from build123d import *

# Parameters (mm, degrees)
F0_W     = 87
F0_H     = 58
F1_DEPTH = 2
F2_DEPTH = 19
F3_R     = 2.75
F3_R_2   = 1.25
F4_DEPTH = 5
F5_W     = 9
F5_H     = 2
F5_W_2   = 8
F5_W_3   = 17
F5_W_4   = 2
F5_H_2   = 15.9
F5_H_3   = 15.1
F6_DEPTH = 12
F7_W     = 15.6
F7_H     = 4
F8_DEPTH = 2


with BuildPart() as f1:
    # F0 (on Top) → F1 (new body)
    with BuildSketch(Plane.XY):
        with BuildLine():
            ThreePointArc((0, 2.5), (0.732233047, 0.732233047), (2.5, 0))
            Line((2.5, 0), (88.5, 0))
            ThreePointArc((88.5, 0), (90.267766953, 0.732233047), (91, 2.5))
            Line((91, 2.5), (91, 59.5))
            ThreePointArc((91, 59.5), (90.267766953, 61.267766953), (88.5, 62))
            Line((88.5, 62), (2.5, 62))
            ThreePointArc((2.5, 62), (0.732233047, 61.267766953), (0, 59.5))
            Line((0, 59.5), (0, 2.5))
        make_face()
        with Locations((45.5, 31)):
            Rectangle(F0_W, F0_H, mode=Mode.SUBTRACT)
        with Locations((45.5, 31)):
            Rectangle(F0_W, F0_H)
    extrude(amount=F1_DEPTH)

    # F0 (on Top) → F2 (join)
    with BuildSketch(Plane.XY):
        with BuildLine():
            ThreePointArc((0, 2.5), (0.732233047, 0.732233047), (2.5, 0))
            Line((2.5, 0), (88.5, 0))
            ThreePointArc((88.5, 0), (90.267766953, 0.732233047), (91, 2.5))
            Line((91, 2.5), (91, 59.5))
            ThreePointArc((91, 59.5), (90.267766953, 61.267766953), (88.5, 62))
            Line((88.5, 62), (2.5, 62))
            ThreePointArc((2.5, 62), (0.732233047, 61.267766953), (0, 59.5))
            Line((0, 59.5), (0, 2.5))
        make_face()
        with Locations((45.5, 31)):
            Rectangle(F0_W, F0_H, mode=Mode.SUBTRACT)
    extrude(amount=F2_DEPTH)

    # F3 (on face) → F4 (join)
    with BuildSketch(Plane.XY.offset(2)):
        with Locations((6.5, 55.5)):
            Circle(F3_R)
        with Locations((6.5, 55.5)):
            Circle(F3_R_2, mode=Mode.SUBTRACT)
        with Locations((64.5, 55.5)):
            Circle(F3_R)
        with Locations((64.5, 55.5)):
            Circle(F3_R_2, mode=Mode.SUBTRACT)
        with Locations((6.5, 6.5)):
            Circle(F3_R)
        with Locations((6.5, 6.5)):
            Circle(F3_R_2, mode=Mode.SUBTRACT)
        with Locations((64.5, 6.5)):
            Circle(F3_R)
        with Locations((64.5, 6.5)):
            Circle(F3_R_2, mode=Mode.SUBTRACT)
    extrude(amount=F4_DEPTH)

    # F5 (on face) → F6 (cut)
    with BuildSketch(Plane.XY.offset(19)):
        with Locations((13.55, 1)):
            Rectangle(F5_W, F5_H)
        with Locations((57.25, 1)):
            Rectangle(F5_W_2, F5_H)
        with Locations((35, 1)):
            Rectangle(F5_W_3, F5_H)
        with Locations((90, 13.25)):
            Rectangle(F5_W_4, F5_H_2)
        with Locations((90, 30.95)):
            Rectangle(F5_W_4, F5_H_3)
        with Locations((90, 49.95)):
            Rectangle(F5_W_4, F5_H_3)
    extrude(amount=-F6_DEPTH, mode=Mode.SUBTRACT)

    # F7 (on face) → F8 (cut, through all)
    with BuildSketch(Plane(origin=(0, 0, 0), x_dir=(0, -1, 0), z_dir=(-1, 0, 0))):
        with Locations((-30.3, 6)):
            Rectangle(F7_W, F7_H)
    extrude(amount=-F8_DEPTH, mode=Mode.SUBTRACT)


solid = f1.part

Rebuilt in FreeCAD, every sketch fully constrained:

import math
import FreeCAD as App
import Part
import Sketcher
from FreeCAD import Vector

doc = App.newDocument("Part")
body = doc.addObject("PartDesign::Body", "Body")

# Sketch on XY plane
sketch1 = doc.addObject("Sketcher::SketchObject", "Sketch")
body.addObject(sketch1)
sketch1.AttachmentSupport = (doc.XY_Plane, [""])
sketch1.MapMode = "FlatFace"
sketch1.addGeometry(Part.ArcOfCircle(Part.Circle(Vector(2.5, 2.5, 0), Vector(0, 0, 1), 2.5), math.radians(180), math.radians(270)), False)
sketch1.addGeometry(Part.LineSegment(Vector(2.5, 0, 0), Vector(88.5, 0, 0)), False)
sketch1.addGeometry(Part.ArcOfCircle(Part.Circle(Vector(88.5, 2.5, 0), Vector(0, 0, 1), 2.5), math.radians(-90), math.radians(0)), False)
sketch1.addGeometry(Part.LineSegment(Vector(91, 2.5, 0), Vector(91, 59.5, 0)), False)
sketch1.addGeometry(Part.ArcOfCircle(Part.Circle(Vector(88.5, 59.5, 0), Vector(0, 0, 1), 2.5), math.radians(0), math.radians(90)), False)
sketch1.addGeometry(Part.LineSegment(Vector(88.5, 62, 0), Vector(2.5, 62, 0)), False)
sketch1.addGeometry(Part.ArcOfCircle(Part.Circle(Vector(2.5, 59.5, 0), Vector(0, 0, 1), 2.5), math.radians(90), math.radians(180)), False)
sketch1.addGeometry(Part.LineSegment(Vector(0, 59.5, 0), Vector(0, 2.5, 0)), False)
sketch1.addConstraint(Sketcher.Constraint("Tangent", 0, 2, 1, 1))
sketch1.addConstraint(Sketcher.Constraint("Tangent", 1, 2, 2, 1))
sketch1.addConstraint(Sketcher.Constraint("Tangent", 2, 2, 3, 1))
sketch1.addConstraint(Sketcher.Constraint("Tangent", 3, 2, 4, 1))
sketch1.addConstraint(Sketcher.Constraint("Tangent", 4, 2, 5, 1))
sketch1.addConstraint(Sketcher.Constraint("Tangent", 5, 2, 6, 1))
sketch1.addConstraint(Sketcher.Constraint("Tangent", 6, 2, 7, 1))
sketch1.addConstraint(Sketcher.Constraint("Tangent", 7, 2, 0, 1))
sketch1.addConstraint(Sketcher.Constraint("Horizontal", 1))
sketch1.addConstraint(Sketcher.Constraint("Vertical", 3))
sketch1.addConstraint(Sketcher.Constraint("Horizontal", 5))
sketch1.addConstraint(Sketcher.Constraint("Vertical", 7))
sketch1.addConstraint(Sketcher.Constraint("Equal", 0, 2))
sketch1.addConstraint(Sketcher.Constraint("Equal", 2, 4))
sketch1.addConstraint(Sketcher.Constraint("Equal", 4, 6))
sketch1.addConstraint(Sketcher.Constraint("PointOnObject", 0, 2, -1))
sketch1.addConstraint(Sketcher.Constraint("PointOnObject", 6, 2, -2))
sketch1.addConstraint(Sketcher.Constraint("Radius", 0, 2.5))
sketch1.addConstraint(Sketcher.Constraint("DistanceX", 1, 1, 1, 2, 86.0))
sketch1.addConstraint(Sketcher.Constraint("DistanceY", 3, 1, 3, 2, 57.0))
pad1 = doc.addObject("PartDesign::Pad", "Pad")
body.addObject(pad1)
pad1.Profile = sketch1
pad1.Length = 2

# Sketch on XY plane
sketch2 = doc.addObject("Sketcher::SketchObject", "Sketch001")
body.addObject(sketch2)
sketch2.AttachmentSupport = (doc.XY_Plane, [""])
sketch2.MapMode = "FlatFace"
sketch2.addGeometry(Part.ArcOfCircle(Part.Circle(Vector(2.5, 2.5, 0), Vector(0, 0, 1), 2.5), math.radians(180), math.radians(270)), False)
sketch2.addGeometry(Part.LineSegment(Vector(2.5, 0, 0), Vector(88.5, 0, 0)), False)
sketch2.addGeometry(Part.ArcOfCircle(Part.Circle(Vector(88.5, 2.5, 0), Vector(0, 0, 1), 2.5), math.radians(-90), math.radians(0)), False)
sketch2.addGeometry(Part.LineSegment(Vector(91, 2.5, 0), Vector(91, 59.5, 0)), False)
sketch2.addGeometry(Part.ArcOfCircle(Part.Circle(Vector(88.5, 59.5, 0), Vector(0, 0, 1), 2.5), math.radians(0), math.radians(90)), False)
sketch2.addGeometry(Part.LineSegment(Vector(88.5, 62, 0), Vector(2.5, 62, 0)), False)
sketch2.addGeometry(Part.ArcOfCircle(Part.Circle(Vector(2.5, 59.5, 0), Vector(0, 0, 1), 2.5), math.radians(90), math.radians(180)), False)
sketch2.addGeometry(Part.LineSegment(Vector(0, 59.5, 0), Vector(0, 2.5, 0)), False)
sketch2.addGeometry(Part.LineSegment(Vector(89, 2, 0), Vector(2, 2, 0)), False)
sketch2.addGeometry(Part.LineSegment(Vector(2, 2, 0), Vector(2, 60, 0)), False)
sketch2.addGeometry(Part.LineSegment(Vector(2, 60, 0), Vector(89, 60, 0)), False)
sketch2.addGeometry(Part.LineSegment(Vector(89, 60, 0), Vector(89, 2, 0)), False)
sketch2.addConstraint(Sketcher.Constraint("Tangent", 0, 2, 1, 1))
sketch2.addConstraint(Sketcher.Constraint("Tangent", 1, 2, 2, 1))
sketch2.addConstraint(Sketcher.Constraint("Tangent", 2, 2, 3, 1))
sketch2.addConstraint(Sketcher.Constraint("Tangent", 3, 2, 4, 1))
sketch2.addConstraint(Sketcher.Constraint("Tangent", 4, 2, 5, 1))
sketch2.addConstraint(Sketcher.Constraint("Tangent", 5, 2, 6, 1))
sketch2.addConstraint(Sketcher.Constraint("Tangent", 6, 2, 7, 1))
sketch2.addConstraint(Sketcher.Constraint("Tangent", 7, 2, 0, 1))
sketch2.addConstraint(Sketcher.Constraint("Coincident", 8, 2, 9, 1))
sketch2.addConstraint(Sketcher.Constraint("Coincident", 9, 2, 10, 1))
sketch2.addConstraint(Sketcher.Constraint("Coincident", 10, 2, 11, 1))
sketch2.addConstraint(Sketcher.Constraint("Coincident", 11, 2, 8, 1))
sketch2.addConstraint(Sketcher.Constraint("Horizontal", 1))
sketch2.addConstraint(Sketcher.Constraint("Vertical", 3))
sketch2.addConstraint(Sketcher.Constraint("Horizontal", 5))
sketch2.addConstraint(Sketcher.Constraint("Vertical", 7))
sketch2.addConstraint(Sketcher.Constraint("Horizontal", 8))
sketch2.addConstraint(Sketcher.Constraint("Vertical", 9))
sketch2.addConstraint(Sketcher.Constraint("Horizontal", 10))
sketch2.addConstraint(Sketcher.Constraint("Vertical", 11))
sketch2.addConstraint(Sketcher.Constraint("Equal", 0, 2))
sketch2.addConstraint(Sketcher.Constraint("Equal", 2, 4))
sketch2.addConstraint(Sketcher.Constraint("Equal", 4, 6))
sketch2.addConstraint(Sketcher.Constraint("PointOnObject", 0, 2, -1))
sketch2.addConstraint(Sketcher.Constraint("PointOnObject", 6, 2, -2))
sketch2.addConstraint(Sketcher.Constraint("Radius", 0, 2.5))
sketch2.addConstraint(Sketcher.Constraint("DistanceX", 1, 1, 1, 2, 86.0))
sketch2.addConstraint(Sketcher.Constraint("DistanceX", 8, 2, 8, 1, 87.0))
sketch2.addConstraint(Sketcher.Constraint("DistanceY", 3, 1, 3, 2, 57.0))
sketch2.addConstraint(Sketcher.Constraint("DistanceY", 9, 1, 9, 2, 58.0))
sketch2.addConstraint(Sketcher.Constraint("DistanceX", -1, 1, 8, 2, 2.0))
sketch2.addConstraint(Sketcher.Constraint("DistanceY", -1, 1, 8, 2, 2.0))
pad2 = doc.addObject("PartDesign::Pad", "Pad001")
body.addObject(pad2)
pad2.Profile = sketch2
pad2.Length = 19

# Sketch on XY plane
sketch3 = doc.addObject("Sketcher::SketchObject", "Sketch002")
body.addObject(sketch3)
sketch3.AttachmentSupport = (doc.XY_Plane, [""])
sketch3.MapMode = "FlatFace"
sketch3.AttachmentOffset = App.Placement(Vector(0, 0, 2), App.Rotation())
sketch3.addGeometry(Part.Circle(Vector(6.5, 55.5, 0), Vector(0, 0, 1), 2.75), False)
sketch3.addGeometry(Part.Circle(Vector(6.5, 55.5, 0), Vector(0, 0, 1), 1.25), False)
sketch3.addGeometry(Part.Circle(Vector(64.5, 55.5, 0), Vector(0, 0, 1), 2.75), False)
sketch3.addGeometry(Part.Circle(Vector(64.5, 55.5, 0), Vector(0, 0, 1), 1.25), False)
sketch3.addGeometry(Part.Circle(Vector(6.5, 6.5, 0), Vector(0, 0, 1), 2.75), False)
sketch3.addGeometry(Part.Circle(Vector(6.5, 6.5, 0), Vector(0, 0, 1), 1.25), False)
sketch3.addGeometry(Part.Circle(Vector(64.5, 6.5, 0), Vector(0, 0, 1), 2.75), False)
sketch3.addGeometry(Part.Circle(Vector(64.5, 6.5, 0), Vector(0, 0, 1), 1.25), False)
sketch3.addConstraint(Sketcher.Constraint("Coincident", 1, 3, 0, 3))
sketch3.addConstraint(Sketcher.Constraint("Coincident", 3, 3, 2, 3))
sketch3.addConstraint(Sketcher.Constraint("Coincident", 5, 3, 4, 3))
sketch3.addConstraint(Sketcher.Constraint("Coincident", 7, 3, 6, 3))
sketch3.addConstraint(Sketcher.Constraint("Equal", 0, 2))
sketch3.addConstraint(Sketcher.Constraint("Equal", 1, 3))
sketch3.addConstraint(Sketcher.Constraint("Equal", 2, 4))
sketch3.addConstraint(Sketcher.Constraint("Equal", 3, 5))
sketch3.addConstraint(Sketcher.Constraint("Equal", 4, 6))
sketch3.addConstraint(Sketcher.Constraint("Equal", 5, 7))
sketch3.addConstraint(Sketcher.Constraint("Horizontal", 1, 3, 2, 3))
sketch3.addConstraint(Sketcher.Constraint("Horizontal", 5, 3, 6, 3))
sketch3.addConstraint(Sketcher.Constraint("Vertical", 1, 3, 4, 3))
sketch3.addConstraint(Sketcher.Constraint("Vertical", 3, 3, 6, 3))
sketch3.addConstraint(Sketcher.Constraint("Diameter", 0, 5.5))
sketch3.addConstraint(Sketcher.Constraint("Diameter", 1, 2.5))
sketch3.addConstraint(Sketcher.Constraint("DistanceX", 0, 3, 2, 3, 58.0))
sketch3.addConstraint(Sketcher.Constraint("DistanceY", 4, 3, 0, 3, 49.0))
sketch3.addConstraint(Sketcher.Constraint("DistanceX", -1, 1, 0, 3, 6.5))
sketch3.addConstraint(Sketcher.Constraint("DistanceY", -1, 1, 0, 3, 55.5))
pad3 = doc.addObject("PartDesign::Pad", "Pad002")
body.addObject(pad3)
pad3.Profile = sketch3
pad3.Length = 5

# Sketch on XY plane
sketch4 = doc.addObject("Sketcher::SketchObject", "Sketch003")
body.addObject(sketch4)
sketch4.AttachmentSupport = (doc.XY_Plane, [""])
sketch4.MapMode = "FlatFace"
sketch4.AttachmentOffset = App.Placement(Vector(0, 0, 19), App.Rotation())
sketch4.addGeometry(Part.LineSegment(Vector(9.05, 2, 0), Vector(9.05, 0, 0)), False)
sketch4.addGeometry(Part.LineSegment(Vector(9.05, 0, 0), Vector(18.05, 0, 0)), False)
sketch4.addGeometry(Part.LineSegment(Vector(18.05, 0, 0), Vector(18.05, 2, 0)), False)
sketch4.addGeometry(Part.LineSegment(Vector(18.05, 2, 0), Vector(9.05, 2, 0)), False)
sketch4.addGeometry(Part.LineSegment(Vector(53.25, 2, 0), Vector(53.25, 0, 0)), False)
sketch4.addGeometry(Part.LineSegment(Vector(53.25, 0, 0), Vector(61.25, 0, 0)), False)
sketch4.addGeometry(Part.LineSegment(Vector(61.25, 0, 0), Vector(61.25, 2, 0)), False)
sketch4.addGeometry(Part.LineSegment(Vector(61.25, 2, 0), Vector(53.25, 2, 0)), False)
sketch4.addGeometry(Part.LineSegment(Vector(26.5, 2, 0), Vector(26.5, 0, 0)), False)
sketch4.addGeometry(Part.LineSegment(Vector(26.5, 0, 0), Vector(43.5, 0, 0)), False)
sketch4.addGeometry(Part.LineSegment(Vector(43.5, 0, 0), Vector(43.5, 2, 0)), False)
sketch4.addGeometry(Part.LineSegment(Vector(43.5, 2, 0), Vector(26.5, 2, 0)), False)
sketch4.addGeometry(Part.LineSegment(Vector(89, 21.2, 0), Vector(89, 5.3, 0)), False)
sketch4.addGeometry(Part.LineSegment(Vector(89, 5.3, 0), Vector(91, 5.3, 0)), False)
sketch4.addGeometry(Part.LineSegment(Vector(91, 5.3, 0), Vector(91, 21.2, 0)), False)
sketch4.addGeometry(Part.LineSegment(Vector(91, 21.2, 0), Vector(89, 21.2, 0)), False)
sketch4.addGeometry(Part.LineSegment(Vector(89, 38.5, 0), Vector(89, 23.4, 0)), False)
sketch4.addGeometry(Part.LineSegment(Vector(89, 23.4, 0), Vector(91, 23.4, 0)), False)
sketch4.addGeometry(Part.LineSegment(Vector(91, 23.4, 0), Vector(91, 38.5, 0)), False)
sketch4.addGeometry(Part.LineSegment(Vector(91, 38.5, 0), Vector(89, 38.5, 0)), False)
sketch4.addGeometry(Part.LineSegment(Vector(89, 57.5, 0), Vector(89, 42.4, 0)), False)
sketch4.addGeometry(Part.LineSegment(Vector(89, 42.4, 0), Vector(91, 42.4, 0)), False)
sketch4.addGeometry(Part.LineSegment(Vector(91, 42.4, 0), Vector(91, 57.5, 0)), False)
sketch4.addGeometry(Part.LineSegment(Vector(91, 57.5, 0), Vector(89, 57.5, 0)), False)
sketch4.addConstraint(Sketcher.Constraint("Coincident", 0, 2, 1, 1))
sketch4.addConstraint(Sketcher.Constraint("Coincident", 1, 2, 2, 1))
sketch4.addConstraint(Sketcher.Constraint("Coincident", 2, 2, 3, 1))
sketch4.addConstraint(Sketcher.Constraint("Coincident", 3, 2, 0, 1))
sketch4.addConstraint(Sketcher.Constraint("Coincident", 4, 2, 5, 1))
sketch4.addConstraint(Sketcher.Constraint("Coincident", 5, 2, 6, 1))
sketch4.addConstraint(Sketcher.Constraint("Coincident", 6, 2, 7, 1))
sketch4.addConstraint(Sketcher.Constraint("Coincident", 7, 2, 4, 1))
sketch4.addConstraint(Sketcher.Constraint("Coincident", 8, 2, 9, 1))
sketch4.addConstraint(Sketcher.Constraint("Coincident", 9, 2, 10, 1))
sketch4.addConstraint(Sketcher.Constraint("Coincident", 10, 2, 11, 1))
sketch4.addConstraint(Sketcher.Constraint("Coincident", 11, 2, 8, 1))
sketch4.addConstraint(Sketcher.Constraint("Coincident", 12, 2, 13, 1))
sketch4.addConstraint(Sketcher.Constraint("Coincident", 13, 2, 14, 1))
sketch4.addConstraint(Sketcher.Constraint("Coincident", 14, 2, 15, 1))
sketch4.addConstraint(Sketcher.Constraint("Coincident", 15, 2, 12, 1))
sketch4.addConstraint(Sketcher.Constraint("Coincident", 16, 2, 17, 1))
sketch4.addConstraint(Sketcher.Constraint("Coincident", 17, 2, 18, 1))
sketch4.addConstraint(Sketcher.Constraint("Coincident", 18, 2, 19, 1))
sketch4.addConstraint(Sketcher.Constraint("Coincident", 19, 2, 16, 1))
sketch4.addConstraint(Sketcher.Constraint("Coincident", 20, 2, 21, 1))
sketch4.addConstraint(Sketcher.Constraint("Coincident", 21, 2, 22, 1))
sketch4.addConstraint(Sketcher.Constraint("Coincident", 22, 2, 23, 1))
sketch4.addConstraint(Sketcher.Constraint("Coincident", 23, 2, 20, 1))
sketch4.addConstraint(Sketcher.Constraint("Vertical", 0))
sketch4.addConstraint(Sketcher.Constraint("Horizontal", 1))
sketch4.addConstraint(Sketcher.Constraint("Vertical", 2))
sketch4.addConstraint(Sketcher.Constraint("Horizontal", 3))
sketch4.addConstraint(Sketcher.Constraint("Vertical", 4))
sketch4.addConstraint(Sketcher.Constraint("Horizontal", 5))
sketch4.addConstraint(Sketcher.Constraint("Vertical", 6))
sketch4.addConstraint(Sketcher.Constraint("Horizontal", 7))
sketch4.addConstraint(Sketcher.Constraint("Vertical", 8))
sketch4.addConstraint(Sketcher.Constraint("Horizontal", 9))
sketch4.addConstraint(Sketcher.Constraint("Vertical", 10))
sketch4.addConstraint(Sketcher.Constraint("Horizontal", 11))
sketch4.addConstraint(Sketcher.Constraint("Vertical", 12))
sketch4.addConstraint(Sketcher.Constraint("Horizontal", 13))
sketch4.addConstraint(Sketcher.Constraint("Vertical", 14))
sketch4.addConstraint(Sketcher.Constraint("Horizontal", 15))
sketch4.addConstraint(Sketcher.Constraint("Vertical", 16))
sketch4.addConstraint(Sketcher.Constraint("Horizontal", 17))
sketch4.addConstraint(Sketcher.Constraint("Vertical", 18))
sketch4.addConstraint(Sketcher.Constraint("Horizontal", 19))
sketch4.addConstraint(Sketcher.Constraint("Vertical", 20))
sketch4.addConstraint(Sketcher.Constraint("Horizontal", 21))
sketch4.addConstraint(Sketcher.Constraint("Vertical", 22))
sketch4.addConstraint(Sketcher.Constraint("Horizontal", 23))
sketch4.addConstraint(Sketcher.Constraint("PointOnObject", 0, 2, -1))
sketch4.addConstraint(Sketcher.Constraint("PointOnObject", 4, 2, -1))
sketch4.addConstraint(Sketcher.Constraint("PointOnObject", 8, 2, -1))
sketch4.addConstraint(Sketcher.Constraint("Horizontal", 3, 2, 6, 2))
sketch4.addConstraint(Sketcher.Constraint("Horizontal", 7, 2, 10, 2))
sketch4.addConstraint(Sketcher.Constraint("Vertical", 15, 2, 16, 2))
sketch4.addConstraint(Sketcher.Constraint("Vertical", 14, 2, 17, 2))
sketch4.addConstraint(Sketcher.Constraint("Vertical", 19, 2, 20, 2))
sketch4.addConstraint(Sketcher.Constraint("Vertical", 18, 2, 21, 2))
sketch4.addConstraint(Sketcher.Constraint("Equal", 23, 0))
sketch4.addConstraint(Sketcher.Constraint("Equal", 18, 20))
sketch4.addConstraint(Sketcher.Constraint("DistanceX", 1, 1, 1, 2, 9.0))
sketch4.addConstraint(Sketcher.Constraint("DistanceX", 5, 1, 5, 2, 8.0))
sketch4.addConstraint(Sketcher.Constraint("DistanceX", 9, 1, 9, 2, 17.0))
sketch4.addConstraint(Sketcher.Constraint("DistanceX", 13, 1, 13, 2, 2.0))
sketch4.addConstraint(Sketcher.Constraint("DistanceY", 12, 2, 12, 1, 15.9))
sketch4.addConstraint(Sketcher.Constraint("DistanceY", 16, 2, 16, 1, 15.1))
sketch4.addConstraint(Sketcher.Constraint("DistanceX", -1, 1, 12, 2, 89.0))
sketch4.addConstraint(Sketcher.Constraint("DistanceY", 16, 2, 20, 2, 19.0))
sketch4.addConstraint(Sketcher.Constraint("DistanceX", -1, 1, 8, 2, 26.5))
sketch4.addConstraint(Sketcher.Constraint("DistanceY", -1, 1, 12, 2, 5.3))
sketch4.addConstraint(Sketcher.Constraint("DistanceY", -1, 1, 16, 2, 23.4))
sketch4.addConstraint(Sketcher.Constraint("DistanceX", 1, 2, 4, 2, 35.2))
sketch4.addConstraint(Sketcher.Constraint("DistanceX", -1, 1, 0, 2, 9.05))
pocket1 = doc.addObject("PartDesign::Pocket", "Pocket")
body.addObject(pocket1)
pocket1.Profile = sketch4
pocket1.Length = 12

# Sketch on YZ plane
sketch5 = doc.addObject("Sketcher::SketchObject", "Sketch004")
body.addObject(sketch5)
sketch5.AttachmentSupport = (doc.YZ_Plane, [""])
sketch5.MapMode = "FlatFace"
sketch5.addGeometry(Part.LineSegment(Vector(38.1, 8, 0), Vector(38.1, 4, 0)), False)
sketch5.addGeometry(Part.LineSegment(Vector(38.1, 4, 0), Vector(22.5, 4, 0)), False)
sketch5.addGeometry(Part.LineSegment(Vector(22.5, 4, 0), Vector(22.5, 8, 0)), False)
sketch5.addGeometry(Part.LineSegment(Vector(22.5, 8, 0), Vector(38.1, 8, 0)), False)
sketch5.addConstraint(Sketcher.Constraint("Coincident", 0, 2, 1, 1))
sketch5.addConstraint(Sketcher.Constraint("Coincident", 1, 2, 2, 1))
sketch5.addConstraint(Sketcher.Constraint("Coincident", 2, 2, 3, 1))
sketch5.addConstraint(Sketcher.Constraint("Coincident", 3, 2, 0, 1))
sketch5.addConstraint(Sketcher.Constraint("Vertical", 0))
sketch5.addConstraint(Sketcher.Constraint("Horizontal", 1))
sketch5.addConstraint(Sketcher.Constraint("Vertical", 2))
sketch5.addConstraint(Sketcher.Constraint("Horizontal", 3))
sketch5.addConstraint(Sketcher.Constraint("DistanceY", 0, 2, 0, 1, 4.0))
sketch5.addConstraint(Sketcher.Constraint("DistanceX", 1, 2, 1, 1, 15.6))
sketch5.addConstraint(Sketcher.Constraint("DistanceY", -1, 1, 0, 2, 4.0))
sketch5.addConstraint(Sketcher.Constraint("DistanceX", -1, 1, 0, 2, 38.1))
pocket2 = doc.addObject("PartDesign::Pocket", "Pocket001")
body.addObject(pocket2)
pocket2.Profile = sketch5
pocket2.Length = 2
pocket2.Reversed = True

doc.recompute()
